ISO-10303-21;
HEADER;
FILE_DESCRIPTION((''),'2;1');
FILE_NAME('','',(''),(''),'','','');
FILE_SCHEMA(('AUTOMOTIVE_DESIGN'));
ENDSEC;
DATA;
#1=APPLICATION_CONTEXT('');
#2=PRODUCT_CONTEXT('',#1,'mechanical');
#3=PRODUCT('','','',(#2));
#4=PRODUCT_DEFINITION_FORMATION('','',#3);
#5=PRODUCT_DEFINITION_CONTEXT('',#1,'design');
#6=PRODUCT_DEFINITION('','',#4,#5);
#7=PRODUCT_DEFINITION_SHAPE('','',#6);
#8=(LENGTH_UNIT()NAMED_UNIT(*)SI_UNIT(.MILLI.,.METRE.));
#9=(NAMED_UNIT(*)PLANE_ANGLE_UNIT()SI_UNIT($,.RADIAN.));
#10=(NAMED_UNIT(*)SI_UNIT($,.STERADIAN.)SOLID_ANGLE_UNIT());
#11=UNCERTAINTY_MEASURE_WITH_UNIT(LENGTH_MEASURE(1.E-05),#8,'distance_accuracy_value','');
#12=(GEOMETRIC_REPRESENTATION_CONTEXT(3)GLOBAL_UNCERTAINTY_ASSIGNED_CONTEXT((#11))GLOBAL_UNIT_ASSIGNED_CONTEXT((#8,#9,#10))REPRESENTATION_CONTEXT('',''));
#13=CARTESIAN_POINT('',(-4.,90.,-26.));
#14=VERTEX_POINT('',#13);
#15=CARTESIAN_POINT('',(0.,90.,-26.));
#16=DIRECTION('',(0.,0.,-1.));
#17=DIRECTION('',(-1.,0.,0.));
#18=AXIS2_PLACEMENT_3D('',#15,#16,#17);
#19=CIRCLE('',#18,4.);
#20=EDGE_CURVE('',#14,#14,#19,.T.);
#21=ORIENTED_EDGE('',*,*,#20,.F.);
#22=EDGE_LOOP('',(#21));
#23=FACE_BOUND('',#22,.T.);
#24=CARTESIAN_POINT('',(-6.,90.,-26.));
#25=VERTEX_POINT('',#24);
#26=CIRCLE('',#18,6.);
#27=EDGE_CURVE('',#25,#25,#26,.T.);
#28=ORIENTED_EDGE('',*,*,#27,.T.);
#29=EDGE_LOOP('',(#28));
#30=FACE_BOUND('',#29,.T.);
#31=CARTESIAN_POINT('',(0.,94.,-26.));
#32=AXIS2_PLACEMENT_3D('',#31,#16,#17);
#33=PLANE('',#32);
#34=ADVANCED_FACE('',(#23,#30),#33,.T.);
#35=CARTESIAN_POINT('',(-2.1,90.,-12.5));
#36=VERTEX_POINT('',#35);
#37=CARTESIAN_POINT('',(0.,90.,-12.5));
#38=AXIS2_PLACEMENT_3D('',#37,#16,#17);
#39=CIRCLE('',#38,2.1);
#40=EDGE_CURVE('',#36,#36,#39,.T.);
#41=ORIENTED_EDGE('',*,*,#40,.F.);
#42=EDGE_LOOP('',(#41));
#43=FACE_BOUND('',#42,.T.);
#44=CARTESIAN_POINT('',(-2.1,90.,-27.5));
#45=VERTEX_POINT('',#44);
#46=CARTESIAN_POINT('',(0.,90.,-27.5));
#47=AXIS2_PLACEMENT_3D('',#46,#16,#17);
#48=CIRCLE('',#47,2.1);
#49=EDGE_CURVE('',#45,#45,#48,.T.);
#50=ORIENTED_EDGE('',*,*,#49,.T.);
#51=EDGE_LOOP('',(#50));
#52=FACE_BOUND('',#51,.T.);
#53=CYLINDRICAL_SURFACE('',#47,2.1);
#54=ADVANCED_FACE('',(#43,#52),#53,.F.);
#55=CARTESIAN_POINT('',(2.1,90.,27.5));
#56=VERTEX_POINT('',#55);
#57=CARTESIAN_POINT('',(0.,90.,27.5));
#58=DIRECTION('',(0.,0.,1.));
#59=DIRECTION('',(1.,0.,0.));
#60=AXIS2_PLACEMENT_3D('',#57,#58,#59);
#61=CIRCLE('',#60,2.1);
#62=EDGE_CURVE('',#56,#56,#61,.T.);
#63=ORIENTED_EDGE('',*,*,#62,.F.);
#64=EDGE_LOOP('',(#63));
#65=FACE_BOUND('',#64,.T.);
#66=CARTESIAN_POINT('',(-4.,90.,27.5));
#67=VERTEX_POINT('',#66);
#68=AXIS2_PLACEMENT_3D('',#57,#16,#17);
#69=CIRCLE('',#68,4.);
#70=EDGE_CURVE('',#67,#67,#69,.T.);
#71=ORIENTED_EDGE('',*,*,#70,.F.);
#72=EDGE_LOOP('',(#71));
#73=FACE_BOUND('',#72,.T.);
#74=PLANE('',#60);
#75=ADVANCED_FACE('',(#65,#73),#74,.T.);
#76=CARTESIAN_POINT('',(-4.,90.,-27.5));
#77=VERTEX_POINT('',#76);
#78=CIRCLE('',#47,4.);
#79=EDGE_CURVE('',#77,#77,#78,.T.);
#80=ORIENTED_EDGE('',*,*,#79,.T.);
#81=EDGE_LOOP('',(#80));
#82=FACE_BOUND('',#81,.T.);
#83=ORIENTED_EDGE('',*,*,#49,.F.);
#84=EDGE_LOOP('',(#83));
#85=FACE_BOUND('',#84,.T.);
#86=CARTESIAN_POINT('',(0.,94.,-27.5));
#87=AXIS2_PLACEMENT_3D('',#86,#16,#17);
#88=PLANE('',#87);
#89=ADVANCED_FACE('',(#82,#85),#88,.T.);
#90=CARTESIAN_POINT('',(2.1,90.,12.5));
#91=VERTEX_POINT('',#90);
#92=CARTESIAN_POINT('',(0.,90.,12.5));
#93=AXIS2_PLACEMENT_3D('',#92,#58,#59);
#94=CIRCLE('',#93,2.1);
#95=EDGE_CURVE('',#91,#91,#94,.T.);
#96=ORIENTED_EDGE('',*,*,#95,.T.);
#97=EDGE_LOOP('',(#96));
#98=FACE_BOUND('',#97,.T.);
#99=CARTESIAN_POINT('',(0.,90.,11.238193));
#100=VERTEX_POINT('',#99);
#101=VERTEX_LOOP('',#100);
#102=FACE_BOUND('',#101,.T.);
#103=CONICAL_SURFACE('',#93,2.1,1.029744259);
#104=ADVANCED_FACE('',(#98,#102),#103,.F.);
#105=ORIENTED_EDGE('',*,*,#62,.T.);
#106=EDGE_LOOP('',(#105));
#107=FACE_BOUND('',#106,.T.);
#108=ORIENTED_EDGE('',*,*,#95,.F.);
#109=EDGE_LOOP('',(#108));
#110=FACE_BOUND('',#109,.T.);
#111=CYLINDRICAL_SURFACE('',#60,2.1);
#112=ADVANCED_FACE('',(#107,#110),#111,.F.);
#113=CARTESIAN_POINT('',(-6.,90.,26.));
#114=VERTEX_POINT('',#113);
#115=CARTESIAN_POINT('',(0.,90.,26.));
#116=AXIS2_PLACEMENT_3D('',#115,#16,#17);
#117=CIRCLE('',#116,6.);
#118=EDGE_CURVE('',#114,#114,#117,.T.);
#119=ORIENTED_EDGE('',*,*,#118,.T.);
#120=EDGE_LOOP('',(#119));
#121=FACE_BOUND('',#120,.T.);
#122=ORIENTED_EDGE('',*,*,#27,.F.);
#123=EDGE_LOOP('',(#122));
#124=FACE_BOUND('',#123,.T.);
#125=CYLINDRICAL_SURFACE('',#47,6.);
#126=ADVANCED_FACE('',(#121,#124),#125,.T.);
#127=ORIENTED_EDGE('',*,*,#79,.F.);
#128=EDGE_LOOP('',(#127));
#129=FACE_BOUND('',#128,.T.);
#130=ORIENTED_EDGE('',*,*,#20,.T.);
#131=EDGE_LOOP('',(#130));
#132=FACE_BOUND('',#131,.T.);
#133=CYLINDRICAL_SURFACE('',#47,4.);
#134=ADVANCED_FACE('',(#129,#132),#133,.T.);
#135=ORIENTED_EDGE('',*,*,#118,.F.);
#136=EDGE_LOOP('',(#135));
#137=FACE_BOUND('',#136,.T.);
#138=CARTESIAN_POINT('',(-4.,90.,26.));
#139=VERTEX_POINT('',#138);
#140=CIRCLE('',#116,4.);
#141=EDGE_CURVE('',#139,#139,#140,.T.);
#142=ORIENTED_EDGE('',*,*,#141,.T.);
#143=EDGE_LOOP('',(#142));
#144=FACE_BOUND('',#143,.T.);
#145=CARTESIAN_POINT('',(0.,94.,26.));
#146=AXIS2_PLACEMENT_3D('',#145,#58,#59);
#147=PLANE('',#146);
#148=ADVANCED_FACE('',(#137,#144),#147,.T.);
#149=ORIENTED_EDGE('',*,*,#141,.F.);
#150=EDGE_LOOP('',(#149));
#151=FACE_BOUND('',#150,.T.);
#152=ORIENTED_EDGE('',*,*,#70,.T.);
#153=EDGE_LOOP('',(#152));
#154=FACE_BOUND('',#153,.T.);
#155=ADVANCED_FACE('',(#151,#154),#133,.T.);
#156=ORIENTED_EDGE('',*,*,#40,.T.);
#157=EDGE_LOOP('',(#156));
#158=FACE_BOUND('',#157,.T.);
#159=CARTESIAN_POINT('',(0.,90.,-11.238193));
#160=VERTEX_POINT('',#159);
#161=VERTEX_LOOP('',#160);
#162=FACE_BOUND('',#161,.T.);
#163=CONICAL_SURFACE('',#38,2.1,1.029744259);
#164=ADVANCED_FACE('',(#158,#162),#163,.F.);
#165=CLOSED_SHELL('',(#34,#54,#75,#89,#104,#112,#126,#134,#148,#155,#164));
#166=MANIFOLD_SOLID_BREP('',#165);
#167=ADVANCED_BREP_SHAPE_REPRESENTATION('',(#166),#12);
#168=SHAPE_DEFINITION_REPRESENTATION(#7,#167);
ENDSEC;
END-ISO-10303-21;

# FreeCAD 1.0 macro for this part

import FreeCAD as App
import Part
import Sketcher
from FreeCAD import Vector
Q = App.Units.Quantity

doc = App.newDocument("Part")
body = doc.addObject("PartDesign::Body", "Body")

sketch1 = body.newObject("Sketcher::SketchObject", "Sketch")
sketch1.AttachmentSupport = (doc.getObject("YZ_Plane"), [""])
sketch1.MapMode = "FlatFace"
sketch1.addGeometry(Part.LineSegment(Vector(94, -27.5, 0), Vector(94, -26, 0)), False)
sketch1.addGeometry(Part.LineSegment(Vector(94, -26, 0), Vector(96, -26, 0)), False)
sketch1.addGeometry(Part.LineSegment(Vector(96, -26, 0), Vector(96, 26, 0)), False)
sketch1.addGeometry(Part.LineSegment(Vector(96, 26, 0), Vector(94, 26, 0)), False)
sketch1.addGeometry(Part.LineSegment(Vector(94, 26, 0), Vector(94, 27.5, 0)), False)
sketch1.addGeometry(Part.LineSegment(Vector(94, 27.5, 0), Vector(90, 27.5, 0)), False)
sketch1.addGeometry(Part.LineSegment(Vector(90, 27.5, 0), Vector(90, -27.5, 0)), False)
sketch1.addGeometry(Part.LineSegment(Vector(90, -27.5, 0), Vector(94, -27.5, 0)), False)
sketch1.addGeometry(Part.LineSegment(Vector(90, -27.5, 0), Vector(90, 27.5, 0)), True)
sketch1.addConstraint(Sketcher.Constraint("Coincident", 0, 2, 1, 1))
sketch1.addConstraint(Sketcher.Constraint("Coincident", 1, 2, 2, 1))
sketch1.addConstraint(Sketcher.Constraint("Coincident", 2, 2, 3, 1))
sketch1.addConstraint(Sketcher.Constraint("Coincident", 3, 2, 4, 1))
sketch1.addConstraint(Sketcher.Constraint("Coincident", 4, 2, 5, 1))
sketch1.addConstraint(Sketcher.Constraint("Coincident", 5, 2, 6, 1))
sketch1.addConstraint(Sketcher.Constraint("Coincident", 6, 2, 7, 1))
sketch1.addConstraint(Sketcher.Constraint("Coincident", 7, 2, 0, 1))
sketch1.addConstraint(Sketcher.Constraint("Vertical", 0))
sketch1.addConstraint(Sketcher.Constraint("Horizontal", 1))
sketch1.addConstraint(Sketcher.Constraint("Vertical", 2))
sketch1.addConstraint(Sketcher.Constraint("Horizontal", 3))
sketch1.addConstraint(Sketcher.Constraint("Vertical", 4))
sketch1.addConstraint(Sketcher.Constraint("Horizontal", 5))
sketch1.addConstraint(Sketcher.Constraint("Vertical", 6))
sketch1.addConstraint(Sketcher.Constraint("Horizontal", 7))
sketch1.addConstraint(Sketcher.Constraint("Vertical", 8))
sketch1.addConstraint(Sketcher.Constraint("Coincident", 8, 1, 6, 2))
sketch1.addConstraint(Sketcher.Constraint("Symmetric", 0, 2, 3, 2, -1))
sketch1.addConstraint(Sketcher.Constraint("Horizontal", 4, 2, 8, 2))
sketch1.addConstraint(Sketcher.Constraint("Equal", 0, 4))
sketch1.addConstraint(Sketcher.Constraint("DistanceX", 1, 1, 1, 2, Q("2 mm")))
sketch1.addConstraint(Sketcher.Constraint("DistanceX", 5, 2, 5, 1, Q("4 mm")))
sketch1.addConstraint(Sketcher.Constraint("DistanceY", 2, 1, 2, 2, Q("52 mm")))
sketch1.addConstraint(Sketcher.Constraint("DistanceY", 6, 2, 6, 1, Q("55 mm")))
sketch1.addConstraint(Sketcher.Constraint("DistanceX", -1, 1, 0, 2, Q("94 mm")))
revolution = body.newObject("PartDesign::Revolution", "Revolution")
revolution.Profile = sketch1
revolution.ReferenceAxis = (sketch1, ["Axis0"])
revolution.Angle = 360

sketch2 = body.newObject("Sketcher::SketchObject", "Sketch001")
sketch2.AttachmentSupport = (doc.getObject("YZ_Plane"), [""])
sketch2.MapMode = "FlatFace"
sketch2.addGeometry(Part.LineSegment(Vector(90, 11.238193, 0), Vector(90, 27.5, 0)), False)
sketch2.addGeometry(Part.LineSegment(Vector(90, 27.5, 0), Vector(87.9, 27.5, 0)), False)
sketch2.addGeometry(Part.LineSegment(Vector(87.9, 27.5, 0), Vector(87.9, 12.5, 0)), False)
sketch2.addGeometry(Part.LineSegment(Vector(87.9, 12.5, 0), Vector(90, 11.238193, 0)), False)
sketch2.addGeometry(Part.LineSegment(Vector(90, 27.5, 0), Vector(90, 11.238193, 0)), True)
sketch2.addConstraint(Sketcher.Constraint("Coincident", 0, 2, 1, 1))
sketch2.addConstraint(Sketcher.Constraint("Coincident", 1, 2, 2, 1))
sketch2.addConstraint(Sketcher.Constraint("Coincident", 2, 2, 3, 1))
sketch2.addConstraint(Sketcher.Constraint("Coincident", 3, 2, 0, 1))
sketch2.addConstraint(Sketcher.Constraint("Vertical", 0))
sketch2.addConstraint(Sketcher.Constraint("Horizontal", 1))
sketch2.addConstraint(Sketcher.Constraint("Vertical", 2))
sketch2.addConstraint(Sketcher.Constraint("Vertical", 4))
sketch2.addConstraint(Sketcher.Constraint("Coincident", 4, 1, 0, 2))
sketch2.addConstraint(Sketcher.Constraint("Equal", 0, 4))
sketch2.addConstraint(Sketcher.Constraint("DistanceY", 2, 2, 2, 1, Q("15 mm")))
sketch2.addConstraint(Sketcher.Constraint("Angle", 3, Q("-31 deg")))
sketch2.addConstraint(Sketcher.Constraint("DistanceX", 1, 2, 1, 1, Q("2.1 mm")))
sketch2.addConstraint(Sketcher.Constraint("DistanceX", -1, 1, 0, 2, Q("90 mm")))
sketch2.addConstraint(Sketcher.Constraint("DistanceY", -1, 1, 0, 2, Q("27.5 mm")))
groove = body.newObject("PartDesign::Groove", "Groove")
groove.Profile = sketch2
groove.ReferenceAxis = (sketch2, ["Axis0"])
groove.Angle = 360
doc.recompute()

datumline = body.newObject("PartDesign::Line", "DatumLine")
datumline.Placement = App.Placement(Vector(0, 0, 0), App.Rotation(Vector(0, 0, 1), Vector(-0.643199825, -0.765698365, 0)))
linearpattern = body.newObject("PartDesign::LinearPattern", "LinearPattern")
linearpattern.Originals = [groove]
linearpattern.Direction = (datumline, [""])
linearpattern.Mode = "offset"
linearpattern.Offset = 90.280227
linearpattern.Occurrences = 2
body.Tip = linearpattern
doc.recompute()

mirrored = body.newObject("PartDesign::Mirrored", "Mirrored")
mirrored.Originals = [groove]
mirrored.MirrorPlane = (doc.getObject("XY_Plane"), [""])
body.Tip = mirrored

sketch3 = body.newObject("Sketcher::SketchObject", "Sketch002")
sketch3.AttachmentSupport = (doc.getObject("YZ_Plane"), [""])
sketch3.MapMode = "FlatFace"
sketch3.AttachmentOffset = App.Placement(Vector(0, 0, -58.068226), App.Rotation())
sketch3.addGeometry(Part.LineSegment(Vector(20.872578, -27.5, 0), Vector(20.872578, -11.238193, 0)), False)
sketch3.addGeometry(Part.LineSegment(Vector(20.872578, -11.238193, 0), Vector(18.772578, -12.5, 0)), False)
sketch3.addGeometry(Part.LineSegment(Vector(18.772578, -12.5, 0), Vector(18.772578, -27.5, 0)), False)
sketch3.addGeometry(Part.LineSegment(Vector(18.772578, -27.5, 0), Vector(20.872578, -27.5, 0)), False)
sketch3.addGeometry(Part.LineSegment(Vector(20.872578, -11.238193, 0), Vector(20.872578, -27.5, 0)), True)
sketch3.addConstraint(Sketcher.Constraint("Coincident", 0, 2, 1, 1))
sketch3.addConstraint(Sketcher.Constraint("Coincident", 1, 2, 2, 1))
sketch3.addConstraint(Sketcher.Constraint("Coincident", 2, 2, 3, 1))
sketch3.addConstraint(Sketcher.Constraint("Coincident", 3, 2, 0, 1))
sketch3.addConstraint(Sketcher.Constraint("Vertical", 0))
sketch3.addConstraint(Sketcher.Constraint("Vertical", 2))
sketch3.addConstraint(Sketcher.Constraint("Horizontal", 3))
sketch3.addConstraint(Sketcher.Constraint("Vertical", 4))
sketch3.addConstraint(Sketcher.Constraint("Coincident", 4, 1, 0, 2))
sketch3.addConstraint(Sketcher.Constraint("Horizontal", 2, 2, 4, 2))
sketch3.addConstraint(Sketcher.Constraint("DistanceY", 2, 2, 2, 1, Q("15 mm")))
sketch3.addConstraint(Sketcher.Constraint("Angle", 1, Q("-149 deg")))
sketch3.addConstraint(Sketcher.Constraint("DistanceX", 3, 1, 3, 2, Q("2.1 mm")))
sketch3.addConstraint(Sketcher.Constraint("DistanceY", 1, 2, -1, 1, Q("12.5 mm")))
sketch3.addConstraint(Sketcher.Constraint("DistanceX", -1, 1, 0, 2, Q("20.872578 mm")))
groove2 = body.newObject("PartDesign::Groove", "Groove001")
groove2.Profile = sketch3
groove2.ReferenceAxis = (sketch3, ["Axis0"])
groove2.Angle = 360

doc.recompute()
